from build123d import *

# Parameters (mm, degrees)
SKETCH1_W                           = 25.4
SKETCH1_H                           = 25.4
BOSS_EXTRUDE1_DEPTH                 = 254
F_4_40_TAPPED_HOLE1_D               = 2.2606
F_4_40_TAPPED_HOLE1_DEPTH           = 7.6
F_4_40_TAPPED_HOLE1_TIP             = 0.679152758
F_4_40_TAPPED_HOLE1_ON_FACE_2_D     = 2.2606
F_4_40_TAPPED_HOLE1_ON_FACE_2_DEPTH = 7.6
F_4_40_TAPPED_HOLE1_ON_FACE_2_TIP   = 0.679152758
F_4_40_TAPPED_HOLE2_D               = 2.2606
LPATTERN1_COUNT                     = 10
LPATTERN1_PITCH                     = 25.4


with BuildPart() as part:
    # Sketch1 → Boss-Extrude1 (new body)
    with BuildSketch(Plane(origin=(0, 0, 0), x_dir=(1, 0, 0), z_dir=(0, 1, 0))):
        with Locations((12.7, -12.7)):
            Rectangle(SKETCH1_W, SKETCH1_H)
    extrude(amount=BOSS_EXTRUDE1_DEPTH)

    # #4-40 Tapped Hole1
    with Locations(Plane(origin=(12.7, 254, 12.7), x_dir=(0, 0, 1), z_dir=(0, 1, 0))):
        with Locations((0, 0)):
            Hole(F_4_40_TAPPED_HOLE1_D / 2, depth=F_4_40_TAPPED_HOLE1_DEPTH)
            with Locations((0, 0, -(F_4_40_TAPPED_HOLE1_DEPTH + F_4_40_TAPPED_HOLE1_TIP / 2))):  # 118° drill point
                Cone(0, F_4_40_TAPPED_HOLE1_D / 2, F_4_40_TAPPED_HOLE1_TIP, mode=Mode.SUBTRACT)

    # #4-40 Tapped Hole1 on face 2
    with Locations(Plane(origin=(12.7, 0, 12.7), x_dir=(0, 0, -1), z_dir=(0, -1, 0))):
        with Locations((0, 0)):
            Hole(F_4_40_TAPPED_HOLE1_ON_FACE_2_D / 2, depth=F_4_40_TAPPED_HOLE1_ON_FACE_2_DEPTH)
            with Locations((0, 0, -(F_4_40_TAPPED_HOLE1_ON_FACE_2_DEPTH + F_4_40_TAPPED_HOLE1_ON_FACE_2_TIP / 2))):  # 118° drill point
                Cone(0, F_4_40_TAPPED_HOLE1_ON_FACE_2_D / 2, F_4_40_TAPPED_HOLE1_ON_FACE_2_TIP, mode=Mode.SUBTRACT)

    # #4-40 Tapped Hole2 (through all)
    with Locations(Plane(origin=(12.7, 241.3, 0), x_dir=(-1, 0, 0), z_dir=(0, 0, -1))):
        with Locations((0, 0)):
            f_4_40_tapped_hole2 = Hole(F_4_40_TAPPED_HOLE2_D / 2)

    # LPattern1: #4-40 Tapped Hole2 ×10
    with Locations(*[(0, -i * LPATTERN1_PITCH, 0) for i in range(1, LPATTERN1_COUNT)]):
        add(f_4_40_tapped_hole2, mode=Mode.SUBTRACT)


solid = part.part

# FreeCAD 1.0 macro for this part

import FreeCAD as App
import Part
import Sketcher

V = App.Vector
Q = App.Units.Quantity


def add_polygon(sketch, points):
    """Adds a closed chain of lines whose ends are joined by coincident constraints."""
    first, n = sketch.GeometryCount, len(points)
    for a, b in zip(points, points[1:] + points[:1]):
        sketch.addGeometry(Part.LineSegment(App.Vector(*a, 0), App.Vector(*b, 0)), False)
    for i in range(n):
        sketch.addConstraint(Sketcher.Constraint("Coincident", first + i, 2, first + (i + 1) % n, 1))

doc = App.newDocument("Part")
body = doc.addObject("PartDesign::Body", "Body")

# Sketch on XZ plane
sketch1 = body.newObject("Sketcher::SketchObject", "Sketch")
sketch1.AttachmentSupport = (doc.getObject("XZ_Plane"), [""])
sketch1.MapMode = "FlatFace"
add_polygon(sketch1, [(0, 0), (0, 25), (25, 25), (25, 0)])  # lines 0-3
sketch1.addConstraint(Sketcher.Constraint("Vertical", 0))
sketch1.addConstraint(Sketcher.Constraint("Horizontal", 1))
sketch1.addConstraint(Sketcher.Constraint("Vertical", 2))
sketch1.addConstraint(Sketcher.Constraint("Horizontal", 3))
sketch1.addConstraint(Sketcher.Constraint("Coincident", 3, 2, -1, 1))
sketch1.addConstraint(Sketcher.Constraint("Equal", 3, 0))
sketch1.addConstraint(Sketcher.Constraint("DistanceX", 1, 1, 1, 2, Q("1 in")))
pad1 = body.newObject("PartDesign::Pad", "Pad")
pad1.Profile = sketch1
pad1.Length = Q("10 in")
pad1.Reversed = True

# Sketch on XZ plane
sketch2 = body.newObject("Sketcher::SketchObject", "Sketch001")
sketch2.AttachmentSupport = (doc.getObject("XZ_Plane"), [""])
sketch2.MapMode = "FlatFace"
sketch2.AttachmentOffset = App.Placement(V(0, 0, -10 * 25.4), App.Rotation())
sketch2.addGeometry(Part.Circle(V(12.7, 12.7, 0), V(0, 0, 1), 1.1), False)
sketch2.addConstraint(Sketcher.Constraint("Diameter", 0, Q("0.089 in")))
sketch2.addConstraint(Sketcher.Constraint("DistanceX", -1, 1, 0, 3, Q("0.5 in")))
sketch2.addConstraint(Sketcher.Constraint("DistanceY", -1, 1, 0, 3, Q("0.5 in")))
doc.recompute()
hole = body.newObject("PartDesign::Hole", "Hole")
hole.Profile = sketch2
hole.ThreadType = "None"
hole.Diameter = Q("0.089 in")
hole.DepthType = "Dimension"
hole.Depth = 7.6
hole.DrillPoint = "Angled"
hole.DrillPointAngle = 118
hole.Reversed = True

# Sketch on XZ plane
sketch3 = body.newObject("Sketcher::SketchObject", "Sketch002")
sketch3.AttachmentSupport = (doc.getObject("XZ_Plane"), [""])
sketch3.MapMode = "FlatFace"
sketch3.addGeometry(Part.Circle(V(12.7, 12.7, 0), V(0, 0, 1), 1.1), False)
sketch3.addConstraint(Sketcher.Constraint("Diameter", 0, Q("0.089 in")))
sketch3.addConstraint(Sketcher.Constraint("DistanceX", -1, 1, 0, 3, Q("0.5 in")))
sketch3.addConstraint(Sketcher.Constraint("DistanceY", -1, 1, 0, 3, Q("0.5 in")))
doc.recompute()
hole2 = body.newObject("PartDesign::Hole", "Hole001")
hole2.Profile = sketch3
hole2.ThreadType = "None"
hole2.Diameter = Q("0.089 in")
hole2.DepthType = "Dimension"
hole2.Depth = 7.6
hole2.DrillPoint = "Angled"
hole2.DrillPointAngle = 118

# Sketch on XY plane
sketch4 = body.newObject("Sketcher::SketchObject", "Sketch003")
sketch4.AttachmentSupport = (doc.getObject("XY_Plane"), [""])
sketch4.MapMode = "FlatFace"
sketch4.addGeometry(Part.Circle(V(12.7, 241.3, 0), V(0, 0, 1), 1.1), False)
sketch4.addConstraint(Sketcher.Constraint("Diameter", 0, Q("0.089 in")))
sketch4.addConstraint(Sketcher.Constraint("DistanceX", -1, 1, 0, 3, Q("0.5 in")))
sketch4.addConstraint(Sketcher.Constraint("DistanceY", -1, 1, 0, 3, Q("9.5 in")))
doc.recompute()
hole3 = body.newObject("PartDesign::Hole", "Hole002")
hole3.Profile = sketch4
hole3.ThreadType = "None"
hole3.Diameter = Q("0.089 in")
hole3.DepthType = "ThroughAll"
hole3.Reversed = True
doc.recompute()

linearpattern = body.newObject("PartDesign::LinearPattern", "LinearPattern")
linearpattern.Originals = [hole3]
linearpattern.Direction = (doc.getObject("Y_Axis"), [""])
linearpattern.Mode = "offset"
linearpattern.Offset = Q("1 in")
linearpattern.Occurrences = 10
linearpattern.Reversed = True
body.Tip = linearpattern

doc.recompute()
